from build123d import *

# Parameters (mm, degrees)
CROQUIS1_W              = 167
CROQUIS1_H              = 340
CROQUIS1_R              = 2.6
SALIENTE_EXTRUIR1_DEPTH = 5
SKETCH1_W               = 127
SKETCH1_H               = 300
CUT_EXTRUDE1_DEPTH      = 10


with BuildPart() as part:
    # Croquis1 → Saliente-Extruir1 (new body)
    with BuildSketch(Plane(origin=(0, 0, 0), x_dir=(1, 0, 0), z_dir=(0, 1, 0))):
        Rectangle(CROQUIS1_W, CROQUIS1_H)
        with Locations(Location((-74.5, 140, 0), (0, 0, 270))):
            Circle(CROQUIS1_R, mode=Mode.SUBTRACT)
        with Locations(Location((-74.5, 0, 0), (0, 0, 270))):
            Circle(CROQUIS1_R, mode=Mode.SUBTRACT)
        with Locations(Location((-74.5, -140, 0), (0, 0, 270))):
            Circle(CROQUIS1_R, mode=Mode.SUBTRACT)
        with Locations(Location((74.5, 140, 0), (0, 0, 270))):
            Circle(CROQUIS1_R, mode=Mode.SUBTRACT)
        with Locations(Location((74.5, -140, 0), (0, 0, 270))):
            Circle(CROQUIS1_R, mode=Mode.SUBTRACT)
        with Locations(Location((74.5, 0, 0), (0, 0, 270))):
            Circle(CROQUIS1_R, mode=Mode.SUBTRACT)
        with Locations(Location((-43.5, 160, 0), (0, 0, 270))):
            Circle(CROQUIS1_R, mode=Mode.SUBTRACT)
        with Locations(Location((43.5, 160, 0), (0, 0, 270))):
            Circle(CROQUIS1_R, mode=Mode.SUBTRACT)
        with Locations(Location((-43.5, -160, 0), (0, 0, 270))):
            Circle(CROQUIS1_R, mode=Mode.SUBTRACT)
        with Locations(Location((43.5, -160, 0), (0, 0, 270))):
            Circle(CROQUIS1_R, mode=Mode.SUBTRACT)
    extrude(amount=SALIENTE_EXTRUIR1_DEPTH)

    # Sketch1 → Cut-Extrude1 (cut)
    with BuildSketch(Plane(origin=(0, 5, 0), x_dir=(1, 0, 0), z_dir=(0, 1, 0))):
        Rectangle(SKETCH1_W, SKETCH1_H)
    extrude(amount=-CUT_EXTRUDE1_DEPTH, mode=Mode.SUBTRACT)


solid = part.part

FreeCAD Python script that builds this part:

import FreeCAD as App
import Part
import Sketcher
Q = App.Units.Quantity


def add_polygon(sketch, points):
    """Adds a closed chain of lines whose ends are joined by coincident constraints."""
    first, n = sketch.GeometryCount, len(points)
    for a, b in zip(points, points[1:] + points[:1]):
        sketch.addGeometry(Part.LineSegment(App.Vector(*a, 0), App.Vector(*b, 0)), False)
    for i in range(n):
        sketch.addConstraint(Sketcher.Constraint("Coincident", first + i, 2, first + (i + 1) % n, 1))

doc = App.newDocument("Part")
body = doc.addObject("PartDesign::Body", "Body")

# Sketch on XZ plane
sketch1 = body.newObject("Sketcher::SketchObject", "Sketch")
sketch1.AttachmentSupport = (doc.getObject("XZ_Plane"), [""])
sketch1.MapMode = "FlatFace"
add_polygon(sketch1, [(-83.5, -170), (-83.5, 170), (83.5, 170), (83.5, -170)])  # lines 0-3
sketch1.addGeometry(Part.Circle(App.Vector(-74.5, 140, 0), App.Vector(0, 0, 1), 2.6), False)  # 4
sketch1.addGeometry(Part.Circle(App.Vector(-43.5, 160, 0), App.Vector(0, 0, 1), 2.6), False)  # 5
sketch1.addGeometry(Part.Circle(App.Vector(43.5, 160, 0), App.Vector(0, 0, 1), 2.6), False)  # 6
sketch1.addGeometry(Part.Circle(App.Vector(74.5, 140, 0), App.Vector(0, 0, 1), 2.6), False)  # 7
sketch1.addGeometry(Part.Circle(App.Vector(-74.5, 0, 0), App.Vector(0, 0, 1), 2.6), False)  # 8
sketch1.addGeometry(Part.Circle(App.Vector(-74.5, -140, 0), App.Vector(0, 0, 1), 2.6), False)  # 9
sketch1.addGeometry(Part.Circle(App.Vector(-43.5, -160, 0), App.Vector(0, 0, 1), 2.6), False)  # 10
sketch1.addGeometry(Part.Circle(App.Vector(74.5, 0, 0), App.Vector(0, 0, 1), 2.6), False)  # 11
sketch1.addGeometry(Part.Circle(App.Vector(43.5, -160, 0), App.Vector(0, 0, 1), 2.6), False)  # 12
sketch1.addGeometry(Part.Circle(App.Vector(74.5, -140, 0), App.Vector(0, 0, 1), 2.6), False)  # 13
sketch1.addConstraint([
    Sketcher.Constraint("Vertical", 0),
    Sketcher.Constraint("Horizontal", 1),
    Sketcher.Constraint("Vertical", 2),
    Sketcher.Constraint("Horizontal", 3),
    Sketcher.Constraint("Equal", 4, 5),
    Sketcher.Constraint("Equal", 5, 6),
    Sketcher.Constraint("Equal", 6, 7),
    Sketcher.Constraint("Equal", 7, 8),
    Sketcher.Constraint("Equal", 8, 9),
    Sketcher.Constraint("Equal", 9, 10),
    Sketcher.Constraint("Equal", 10, 11),
    Sketcher.Constraint("Equal", 11, 12),
    Sketcher.Constraint("Equal", 12, 13),
    Sketcher.Constraint("Symmetric", 7, 3, 9, 3, -1, 1),
    Sketcher.Constraint("Symmetric", 6, 3, 10, 3, -1, 1),
    Sketcher.Constraint("Symmetric", 8, 3, 11, 3, -1, 1),
    Sketcher.Constraint("Symmetric", 5, 3, 12, 3, -1, 1),
    Sketcher.Constraint("Symmetric", 4, 3, 13, 3, -1, 1),
    Sketcher.Constraint("Symmetric", 0, 2, 2, 2, -1, 1),
    Sketcher.Constraint("Symmetric", 5, 3, 6, 3, -2),
    Sketcher.Constraint("Symmetric", 4, 3, 7, 3, -2),
    Sketcher.Constraint("PointOnObject", 8, 3, -1),
    Sketcher.Constraint("Vertical", 4, 3, 8, 3),
    Sketcher.Constraint("Diameter", 4, Q("5.2 mm")),
    Sketcher.Constraint("DistanceX", 1, 1, 1, 2, Q("167 mm")),
    Sketcher.Constraint("DistanceY", 0, 1, 0, 2, Q("340 mm")),
    Sketcher.Constraint("DistanceY", -1, 1, 4, 3, Q("140 mm")),
    Sketcher.Constraint("DistanceY", -1, 1, 5, 3, Q("160 mm")),
    Sketcher.Constraint("DistanceX", 4, 3, 5, 3, Q("31 mm")),
    Sketcher.Constraint("DistanceX", 5, 3, 6, 3, Q("87 mm")),
])
pad1 = body.newObject("PartDesign::Pad", "Pad")
pad1.Profile = sketch1
pad1.Length = 5
pad1.Reversed = True

# Sketch on XZ plane
sketch2 = body.newObject("Sketcher::SketchObject", "Sketch001")
sketch2.AttachmentSupport = (doc.getObject("XZ_Plane"), [""])
sketch2.MapMode = "FlatFace"
sketch2.AttachmentOffset = App.Placement(App.Vector(0, 0, -5), App.Rotation())
add_polygon(sketch2, [(-64, -150), (-64, 150), (64, 150), (64, -150)])  # lines 0-3
sketch2.addConstraint([
    Sketcher.Constraint("Vertical", 0),
    Sketcher.Constraint("Horizontal", 1),
    Sketcher.Constraint("Vertical", 2),
    Sketcher.Constraint("Horizontal", 3),
    Sketcher.Constraint("Symmetric", 0, 2, 2, 2, -1, 1),
    Sketcher.Constraint("DistanceX", 1, 1, 1, 2, Q("127 mm")),
    Sketcher.Constraint("DistanceY", 0, 1, 0, 2, Q("300 mm")),
])
pocket1 = body.newObject("PartDesign::Pocket", "Pocket")
pocket1.Profile = sketch2
pocket1.Length = 10
pocket1.Reversed = True

doc.recompute()
